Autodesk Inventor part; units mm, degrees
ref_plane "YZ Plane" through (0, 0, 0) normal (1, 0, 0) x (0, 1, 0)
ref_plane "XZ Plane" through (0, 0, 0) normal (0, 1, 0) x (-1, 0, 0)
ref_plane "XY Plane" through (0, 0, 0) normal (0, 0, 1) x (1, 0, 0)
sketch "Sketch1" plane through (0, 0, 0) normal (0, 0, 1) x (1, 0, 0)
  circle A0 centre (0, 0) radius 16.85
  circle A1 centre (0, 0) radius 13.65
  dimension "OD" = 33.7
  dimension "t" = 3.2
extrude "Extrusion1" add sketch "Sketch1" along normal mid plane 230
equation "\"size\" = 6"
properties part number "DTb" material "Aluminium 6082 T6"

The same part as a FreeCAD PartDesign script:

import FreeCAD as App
import Part
import Sketcher
from FreeCAD import Vector
Q = App.Units.Quantity

doc = App.newDocument("Part")
body = doc.addObject("PartDesign::Body", "Body")

# Sketch on XY plane
sketch1 = body.newObject("Sketcher::SketchObject", "Sketch")
sketch1.AttachmentSupport = (doc.getObject("XY_Plane"), [""])
sketch1.MapMode = "FlatFace"
sketch1.addGeometry(Part.Circle(Vector(0, 0, 0), Vector(0, 0, 1), 17), False)
sketch1.addGeometry(Part.Circle(Vector(0, 0, 0), Vector(0, 0, 1), 14), False)
sketch1.addConstraint(Sketcher.Constraint("Coincident", 0, 3, -1, 1))
sketch1.addConstraint(Sketcher.Constraint("Coincident", 1, 3, -1, 1))
sketch1.addConstraint(Sketcher.Constraint("Diameter", 0, Q("33.7 mm")))
sketch1.addConstraint(Sketcher.Constraint("Diameter", 1, Q("27.3 mm")))
pad1 = body.newObject("PartDesign::Pad", "Pad")
pad1.Profile = sketch1
pad1.Length = 230
pad1.Midplane = True

doc.recompute()
